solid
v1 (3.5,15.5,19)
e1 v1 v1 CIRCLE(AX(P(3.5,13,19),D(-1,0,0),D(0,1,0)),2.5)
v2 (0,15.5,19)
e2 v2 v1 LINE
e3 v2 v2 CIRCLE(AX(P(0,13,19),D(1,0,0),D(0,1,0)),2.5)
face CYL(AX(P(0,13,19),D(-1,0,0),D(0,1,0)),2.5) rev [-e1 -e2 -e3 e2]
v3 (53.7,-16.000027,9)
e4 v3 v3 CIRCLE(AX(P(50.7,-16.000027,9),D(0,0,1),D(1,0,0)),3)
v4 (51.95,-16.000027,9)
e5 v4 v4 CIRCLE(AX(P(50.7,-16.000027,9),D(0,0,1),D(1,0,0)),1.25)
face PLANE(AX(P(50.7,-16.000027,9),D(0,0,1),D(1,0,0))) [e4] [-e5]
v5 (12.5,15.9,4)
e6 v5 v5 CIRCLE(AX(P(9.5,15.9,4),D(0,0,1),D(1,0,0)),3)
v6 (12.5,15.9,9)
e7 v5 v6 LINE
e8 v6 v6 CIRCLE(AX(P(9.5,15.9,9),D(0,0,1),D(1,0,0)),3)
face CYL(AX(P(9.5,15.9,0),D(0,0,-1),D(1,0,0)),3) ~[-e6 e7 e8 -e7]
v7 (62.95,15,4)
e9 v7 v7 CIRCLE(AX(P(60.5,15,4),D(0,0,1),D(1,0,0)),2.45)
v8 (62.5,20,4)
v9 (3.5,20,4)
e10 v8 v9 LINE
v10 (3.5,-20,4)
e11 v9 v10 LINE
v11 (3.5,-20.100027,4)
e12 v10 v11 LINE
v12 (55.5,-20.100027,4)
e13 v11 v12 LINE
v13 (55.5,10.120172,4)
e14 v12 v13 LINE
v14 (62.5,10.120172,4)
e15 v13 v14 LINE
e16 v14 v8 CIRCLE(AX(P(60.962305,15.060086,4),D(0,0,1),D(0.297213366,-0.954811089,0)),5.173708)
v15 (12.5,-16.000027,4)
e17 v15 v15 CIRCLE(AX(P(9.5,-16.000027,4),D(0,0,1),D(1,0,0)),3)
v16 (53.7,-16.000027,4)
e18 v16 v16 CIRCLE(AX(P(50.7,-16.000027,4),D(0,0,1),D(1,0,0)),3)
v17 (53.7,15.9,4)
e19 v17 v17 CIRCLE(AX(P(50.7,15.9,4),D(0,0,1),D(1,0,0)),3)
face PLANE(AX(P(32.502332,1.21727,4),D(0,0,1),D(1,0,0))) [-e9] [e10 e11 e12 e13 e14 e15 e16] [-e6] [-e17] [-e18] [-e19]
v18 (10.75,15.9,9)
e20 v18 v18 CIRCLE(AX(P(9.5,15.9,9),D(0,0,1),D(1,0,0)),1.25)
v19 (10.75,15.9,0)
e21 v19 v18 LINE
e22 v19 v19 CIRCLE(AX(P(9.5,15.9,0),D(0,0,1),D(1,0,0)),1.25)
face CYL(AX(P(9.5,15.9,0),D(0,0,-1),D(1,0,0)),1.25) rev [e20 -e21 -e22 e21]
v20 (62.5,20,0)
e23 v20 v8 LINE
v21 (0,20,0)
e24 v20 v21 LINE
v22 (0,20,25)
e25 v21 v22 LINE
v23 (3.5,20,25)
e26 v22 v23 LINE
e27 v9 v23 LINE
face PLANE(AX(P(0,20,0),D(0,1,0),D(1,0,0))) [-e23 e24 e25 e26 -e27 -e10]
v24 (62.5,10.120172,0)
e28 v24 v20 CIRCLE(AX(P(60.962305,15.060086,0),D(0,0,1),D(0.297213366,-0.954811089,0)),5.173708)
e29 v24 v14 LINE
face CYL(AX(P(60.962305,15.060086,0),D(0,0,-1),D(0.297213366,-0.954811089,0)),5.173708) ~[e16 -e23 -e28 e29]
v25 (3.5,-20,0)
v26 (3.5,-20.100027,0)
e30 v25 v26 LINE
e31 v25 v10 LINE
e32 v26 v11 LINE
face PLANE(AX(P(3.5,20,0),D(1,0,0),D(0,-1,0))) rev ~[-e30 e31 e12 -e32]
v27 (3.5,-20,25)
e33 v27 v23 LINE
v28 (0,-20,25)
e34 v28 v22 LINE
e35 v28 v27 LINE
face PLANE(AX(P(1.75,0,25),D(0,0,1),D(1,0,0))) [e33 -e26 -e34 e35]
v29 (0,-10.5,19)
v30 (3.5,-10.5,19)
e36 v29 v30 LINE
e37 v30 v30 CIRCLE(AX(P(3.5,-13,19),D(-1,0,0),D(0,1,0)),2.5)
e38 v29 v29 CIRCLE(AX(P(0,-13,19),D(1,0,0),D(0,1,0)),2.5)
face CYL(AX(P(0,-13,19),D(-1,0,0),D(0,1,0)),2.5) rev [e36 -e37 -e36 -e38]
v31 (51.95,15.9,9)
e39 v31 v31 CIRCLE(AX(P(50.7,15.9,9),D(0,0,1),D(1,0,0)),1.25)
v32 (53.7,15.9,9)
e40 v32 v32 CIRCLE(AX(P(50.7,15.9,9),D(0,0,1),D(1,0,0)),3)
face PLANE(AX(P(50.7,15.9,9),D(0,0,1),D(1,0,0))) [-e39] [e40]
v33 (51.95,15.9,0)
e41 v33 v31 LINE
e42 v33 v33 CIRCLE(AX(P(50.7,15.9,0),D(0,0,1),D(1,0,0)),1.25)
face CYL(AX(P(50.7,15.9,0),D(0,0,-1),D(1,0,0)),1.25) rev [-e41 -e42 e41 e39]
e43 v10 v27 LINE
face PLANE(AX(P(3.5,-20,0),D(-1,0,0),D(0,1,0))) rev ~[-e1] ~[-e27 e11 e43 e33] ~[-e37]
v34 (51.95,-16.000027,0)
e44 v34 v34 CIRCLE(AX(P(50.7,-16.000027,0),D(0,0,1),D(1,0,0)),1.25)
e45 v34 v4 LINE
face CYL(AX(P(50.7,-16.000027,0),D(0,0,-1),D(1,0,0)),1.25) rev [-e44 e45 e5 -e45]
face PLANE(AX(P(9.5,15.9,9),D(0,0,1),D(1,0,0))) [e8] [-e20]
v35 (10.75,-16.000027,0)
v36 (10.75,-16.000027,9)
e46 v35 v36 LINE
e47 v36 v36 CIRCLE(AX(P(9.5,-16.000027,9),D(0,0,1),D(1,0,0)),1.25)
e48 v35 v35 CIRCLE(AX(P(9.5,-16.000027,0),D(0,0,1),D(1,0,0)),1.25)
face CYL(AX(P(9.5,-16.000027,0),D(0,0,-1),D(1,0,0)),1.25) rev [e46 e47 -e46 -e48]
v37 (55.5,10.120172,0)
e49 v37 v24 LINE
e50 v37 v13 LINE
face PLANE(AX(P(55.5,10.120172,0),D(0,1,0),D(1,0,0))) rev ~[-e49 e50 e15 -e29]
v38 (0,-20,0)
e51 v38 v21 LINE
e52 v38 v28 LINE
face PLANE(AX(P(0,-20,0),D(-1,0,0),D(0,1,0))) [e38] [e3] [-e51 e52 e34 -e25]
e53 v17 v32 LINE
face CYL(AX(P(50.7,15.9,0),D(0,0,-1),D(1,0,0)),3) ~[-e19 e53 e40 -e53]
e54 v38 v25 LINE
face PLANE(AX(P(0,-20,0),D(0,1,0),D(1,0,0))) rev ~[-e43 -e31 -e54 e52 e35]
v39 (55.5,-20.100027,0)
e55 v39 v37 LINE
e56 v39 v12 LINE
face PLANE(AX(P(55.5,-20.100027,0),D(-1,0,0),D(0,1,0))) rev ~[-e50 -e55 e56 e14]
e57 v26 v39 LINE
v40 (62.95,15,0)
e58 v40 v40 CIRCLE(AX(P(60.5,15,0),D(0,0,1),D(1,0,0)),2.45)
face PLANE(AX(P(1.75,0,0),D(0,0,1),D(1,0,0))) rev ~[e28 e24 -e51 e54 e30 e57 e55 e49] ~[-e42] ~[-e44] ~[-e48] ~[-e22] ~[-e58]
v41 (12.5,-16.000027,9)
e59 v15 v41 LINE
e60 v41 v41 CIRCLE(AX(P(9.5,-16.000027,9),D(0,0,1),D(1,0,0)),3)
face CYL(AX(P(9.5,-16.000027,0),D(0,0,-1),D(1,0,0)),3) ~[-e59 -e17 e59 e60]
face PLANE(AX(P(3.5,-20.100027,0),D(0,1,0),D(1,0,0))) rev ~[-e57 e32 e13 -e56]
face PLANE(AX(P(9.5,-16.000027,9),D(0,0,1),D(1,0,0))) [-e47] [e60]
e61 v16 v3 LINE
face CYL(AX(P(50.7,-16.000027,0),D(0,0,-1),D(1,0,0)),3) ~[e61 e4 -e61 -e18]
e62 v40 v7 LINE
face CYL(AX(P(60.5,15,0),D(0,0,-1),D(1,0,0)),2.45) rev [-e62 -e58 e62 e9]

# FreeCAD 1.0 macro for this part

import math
import FreeCAD as App
import Part
import Sketcher
from FreeCAD import Vector
Q = App.Units.Quantity


def add_polygon(sketch, points):
    """Adds a closed chain of lines whose ends are joined by coincident constraints."""
    first, n = sketch.GeometryCount, len(points)
    for a, b in zip(points, points[1:] + points[:1]):
        sketch.addGeometry(Part.LineSegment(App.Vector(*a, 0), App.Vector(*b, 0)), False)
    for i in range(n):
        sketch.addConstraint(Sketcher.Constraint("Coincident", first + i, 2, first + (i + 1) % n, 1))

doc = App.newDocument("Part")
params = doc.addObject("Spreadsheet::Sheet", "Params")
for row, (alias, value) in enumerate([
    ("sketch1_diameter", "6 mm"),
    ("sketch1_diameter2", "4.9 mm"),
    ("sketch1_width", "52 mm"),
    ("sketch1_width2", "7 mm"),
    ("pad1_length", "4 mm"),
    ("sketch2_diameter", "6 mm"),
    ("sketch2_diameter2", "2.5 mm"),
    ("pad2_length", "9 mm"),
    ("sketch3_height", "40 mm"),
    ("sketch3_width", "3.5 mm"),
    ("pad3_length", "25 mm"),
    ("sketch4_diameter", "5 mm"),
    ("pocket1_length", "25 mm"),
], start=1):
    params.set(f"A{row}", alias)
    params.set(f"B{row}", "=" + value)
    params.setAlias(f"B{row}", alias)

body = doc.addObject("PartDesign::Body", "Body")

# Sketch on XY plane
sketch1 = doc.addObject("Sketcher::SketchObject", "Sketch")
body.addObject(sketch1)
sketch1.AttachmentSupport = (doc.XY_Plane, [""])
sketch1.MapMode = "FlatFace"
sketch1.addGeometry([
    Part.LineSegment(Vector(3.5, 20, 0), Vector(3.5, -20.1, 0)),  # 0
    Part.LineSegment(Vector(3.5, -20.1, 0), Vector(55.5, -20.1, 0)),  # 1
    Part.LineSegment(Vector(55.5, -20.1, 0), Vector(55.5, 10.1, 0)),  # 2
    Part.LineSegment(Vector(55.5, 10.1, 0), Vector(62.5, 10.1, 0)),  # 3
    Part.ArcOfCircle(Part.Circle(Vector(61, 15.1, 0), Vector(0, 0, 1), 5.2), math.radians(-73), math.radians(73)),  # 4
    Part.LineSegment(Vector(62.5, 20, 0), Vector(3.5, 20, 0)),  # 5
    Part.Circle(Vector(9.5, -16, 0), Vector(0, 0, 1), 3),  # 6
    Part.Circle(Vector(50.7, -16, 0), Vector(0, 0, 1), 3),  # 7
    Part.Circle(Vector(9.5, 15.9, 0), Vector(0, 0, 1), 3),  # 8
    Part.Circle(Vector(50.7, 15.9, 0), Vector(0, 0, 1), 3),  # 9
    Part.Circle(Vector(60.5, 15, 0), Vector(0, 0, 1), 2.5),  # 10
], False)
sketch1.addConstraint([
    Sketcher.Constraint("Coincident", 0, 2, 1, 1),
    Sketcher.Constraint("Coincident", 1, 2, 2, 1),
    Sketcher.Constraint("Coincident", 2, 2, 3, 1),
    Sketcher.Constraint("Coincident", 3, 2, 4, 1),
    Sketcher.Constraint("Coincident", 4, 2, 5, 1),
    Sketcher.Constraint("Coincident", 5, 2, 0, 1),
    Sketcher.Constraint("Vertical", 0),
    Sketcher.Constraint("Horizontal", 1),
    Sketcher.Constraint("Vertical", 2),
    Sketcher.Constraint("Horizontal", 3),
    Sketcher.Constraint("Horizontal", 5),
    Sketcher.Constraint("Equal", 6, 7),
    Sketcher.Constraint("Equal", 7, 8),
    Sketcher.Constraint("Equal", 8, 9),
    Sketcher.Constraint("Horizontal", 6, 3, 7, 3),
    Sketcher.Constraint("Horizontal", 8, 3, 9, 3),
    Sketcher.Constraint("Vertical", 6, 3, 8, 3),
    Sketcher.Constraint("Vertical", 7, 3, 9, 3),
    Sketcher.Constraint("Vertical", 3, 2, 4, 2),
    Sketcher.Constraint("Diameter", 6, Q("6 mm")),
    Sketcher.Constraint("Diameter", 10, Q("4.9 mm")),
    Sketcher.Constraint("DistanceX", 1, 1, 1, 2, Q("52 mm")),
    Sketcher.Constraint("DistanceX", 3, 1, 3, 2, Q("7 mm")),
    Sketcher.Constraint("DistanceY", -1, 1, 10, 3, Q("15 mm")),
    Sketcher.Constraint("DistanceY", -1, 1, 4, 2, Q("20 mm")),
    Sketcher.Constraint("DistanceX", 8, 3, 10, 3, Q("51 mm")),
    Sketcher.Constraint("DistanceX", 0, 2, 6, 3, Q("6 mm")),
    Sketcher.Constraint("DistanceX", -1, 1, 6, 3, Q("9.5 mm")),
    Sketcher.Constraint("DistanceX", -1, 1, 7, 3, Q("50.7 mm")),
    Sketcher.Constraint("DistanceY", -1, 1, 8, 3, Q("15.9 mm")),
    Sketcher.Constraint("DistanceY", 0, 2, 6, 3, Q("4.1 mm")),
    Sketcher.Constraint("Radius", 4, Q("5.173708 mm")),
    Sketcher.Constraint("DistanceY", 2, 1, 2, 2, Q("30.220199 mm")),
    Sketcher.Constraint("DistanceY", 0, 2, 0, 1, Q("40.100027 mm")),
])
sketch1.setExpression("Constraints[19]", "Params.sketch1_diameter")
sketch1.setExpression("Constraints[20]", "Params.sketch1_diameter2")
sketch1.setExpression("Constraints[21]", "Params.sketch1_width")
sketch1.setExpression("Constraints[22]", "Params.sketch1_width2")
pad1 = doc.addObject("PartDesign::Pad", "Pad")
body.addObject(pad1)
pad1.Profile = sketch1
pad1.setExpression("Length", "Params.pad1_length")

# Sketch on XY plane
sketch2 = doc.addObject("Sketcher::SketchObject", "Sketch001")
body.addObject(sketch2)
sketch2.AttachmentSupport = (doc.XY_Plane, [""])
sketch2.MapMode = "FlatFace"
sketch2.addGeometry([
    Part.Circle(Vector(9.5, 15.9, 0), Vector(0, 0, 1), 3),  # 0
    Part.Circle(Vector(9.5, 15.9, 0), Vector(0, 0, 1), 1.2),  # 1
    Part.Circle(Vector(50.7, 15.9, 0), Vector(0, 0, 1), 3),  # 2
    Part.Circle(Vector(50.7, 15.9, 0), Vector(0, 0, 1), 1.2),  # 3
    Part.Circle(Vector(50.7, -16, 0), Vector(0, 0, 1), 3),  # 4
    Part.Circle(Vector(50.7, -16, 0), Vector(0, 0, 1), 1.2),  # 5
    Part.Circle(Vector(9.5, -16, 0), Vector(0, 0, 1), 3),  # 6
    Part.Circle(Vector(9.5, -16, 0), Vector(0, 0, 1), 1.2),  # 7
], False)
sketch2.addConstraint([
    Sketcher.Constraint("Coincident", 1, 3, 0, 3),
    Sketcher.Constraint("Coincident", 3, 3, 2, 3),
    Sketcher.Constraint("Coincident", 5, 3, 4, 3),
    Sketcher.Constraint("Coincident", 7, 3, 6, 3),
    Sketcher.Constraint("Equal", 0, 2),
    Sketcher.Constraint("Equal", 1, 3),
    Sketcher.Constraint("Equal", 2, 4),
    Sketcher.Constraint("Equal", 3, 5),
    Sketcher.Constraint("Equal", 4, 6),
    Sketcher.Constraint("Equal", 5, 7),
    Sketcher.Constraint("Horizontal", 1, 3, 2, 3),
    Sketcher.Constraint("Horizontal", 5, 3, 6, 3),
    Sketcher.Constraint("Vertical", 3, 3, 4, 3),
    Sketcher.Constraint("Vertical", 1, 3, 6, 3),
    Sketcher.Constraint("Diameter", 0, Q("6 mm")),
    Sketcher.Constraint("Diameter", 1, Q("2.5 mm")),
    Sketcher.Constraint("DistanceX", -1, 1, 0, 3, Q("9.5 mm")),
    Sketcher.Constraint("DistanceY", -1, 1, 0, 3, Q("15.9 mm")),
    Sketcher.Constraint("DistanceX", -1, 1, 2, 3, Q("50.7 mm")),
    Sketcher.Constraint("DistanceY", 4, 3, -1, 1, Q("16.000027 mm")),
])
sketch2.setExpression("Constraints[14]", "Params.sketch2_diameter")
sketch2.setExpression("Constraints[15]", "Params.sketch2_diameter2")
pad2 = doc.addObject("PartDesign::Pad", "Pad001")
body.addObject(pad2)
pad2.Profile = sketch2
pad2.setExpression("Length", "Params.pad2_length")

# Sketch on XY plane
sketch3 = doc.addObject("Sketcher::SketchObject", "Sketch002")
body.addObject(sketch3)
sketch3.AttachmentSupport = (doc.XY_Plane, [""])
sketch3.MapMode = "FlatFace"
add_polygon(sketch3, [(0, 20), (0, -20), (3.5, -20), (3.5, 20)])  # lines 0-3
sketch3.addConstraint([
    Sketcher.Constraint("Vertical", 0),
    Sketcher.Constraint("Horizontal", 1),
    Sketcher.Constraint("Vertical", 2),
    Sketcher.Constraint("Horizontal", 3),
    Sketcher.Constraint("Symmetric", 0, 2, 3, 2, -1, 1),
    Sketcher.Constraint("DistanceY", 0, 2, 0, 1, Q("40 mm")),
    Sketcher.Constraint("DistanceX", 1, 1, 1, 2, Q("3.5 mm")),
])
sketch3.setExpression("Constraints[9]", "Params.sketch3_height")
sketch3.setExpression("Constraints[10]", "Params.sketch3_width")
pad3 = doc.addObject("PartDesign::Pad", "Pad002")
body.addObject(pad3)
pad3.Profile = sketch3
pad3.setExpression("Length", "Params.pad3_length")

# Sketch on YZ plane
sketch4 = doc.addObject("Sketcher::SketchObject", "Sketch003")
body.addObject(sketch4)
sketch4.AttachmentSupport = (doc.YZ_Plane, [""])
sketch4.MapMode = "FlatFace"
sketch4.addGeometry([
    Part.Circle(Vector(13, 19, 0), Vector(0, 0, 1), 2.5),
    Part.Circle(Vector(-13, 19, 0), Vector(0, 0, 1), 2.5),
], False)
sketch4.addConstraint([
    Sketcher.Constraint("Equal", 0, 1),
    Sketcher.Constraint("Symmetric", 0, 3, 1, 3, -2),
    Sketcher.Constraint("Diameter", 0, Q("5 mm")),
    Sketcher.Constraint("DistanceX", -1, 1, 0, 3, Q("13 mm")),
    Sketcher.Constraint("DistanceY", -1, 1, 0, 3, Q("19 mm")),
])
sketch4.setExpression("Constraints[2]", "Params.sketch4_diameter")
pocket1 = doc.addObject("PartDesign::Pocket", "Pocket")
body.addObject(pocket1)
pocket1.Profile = sketch4
pocket1.setExpression("Length", "Params.pocket1_length")
pocket1.Reversed = True

doc.recompute()
